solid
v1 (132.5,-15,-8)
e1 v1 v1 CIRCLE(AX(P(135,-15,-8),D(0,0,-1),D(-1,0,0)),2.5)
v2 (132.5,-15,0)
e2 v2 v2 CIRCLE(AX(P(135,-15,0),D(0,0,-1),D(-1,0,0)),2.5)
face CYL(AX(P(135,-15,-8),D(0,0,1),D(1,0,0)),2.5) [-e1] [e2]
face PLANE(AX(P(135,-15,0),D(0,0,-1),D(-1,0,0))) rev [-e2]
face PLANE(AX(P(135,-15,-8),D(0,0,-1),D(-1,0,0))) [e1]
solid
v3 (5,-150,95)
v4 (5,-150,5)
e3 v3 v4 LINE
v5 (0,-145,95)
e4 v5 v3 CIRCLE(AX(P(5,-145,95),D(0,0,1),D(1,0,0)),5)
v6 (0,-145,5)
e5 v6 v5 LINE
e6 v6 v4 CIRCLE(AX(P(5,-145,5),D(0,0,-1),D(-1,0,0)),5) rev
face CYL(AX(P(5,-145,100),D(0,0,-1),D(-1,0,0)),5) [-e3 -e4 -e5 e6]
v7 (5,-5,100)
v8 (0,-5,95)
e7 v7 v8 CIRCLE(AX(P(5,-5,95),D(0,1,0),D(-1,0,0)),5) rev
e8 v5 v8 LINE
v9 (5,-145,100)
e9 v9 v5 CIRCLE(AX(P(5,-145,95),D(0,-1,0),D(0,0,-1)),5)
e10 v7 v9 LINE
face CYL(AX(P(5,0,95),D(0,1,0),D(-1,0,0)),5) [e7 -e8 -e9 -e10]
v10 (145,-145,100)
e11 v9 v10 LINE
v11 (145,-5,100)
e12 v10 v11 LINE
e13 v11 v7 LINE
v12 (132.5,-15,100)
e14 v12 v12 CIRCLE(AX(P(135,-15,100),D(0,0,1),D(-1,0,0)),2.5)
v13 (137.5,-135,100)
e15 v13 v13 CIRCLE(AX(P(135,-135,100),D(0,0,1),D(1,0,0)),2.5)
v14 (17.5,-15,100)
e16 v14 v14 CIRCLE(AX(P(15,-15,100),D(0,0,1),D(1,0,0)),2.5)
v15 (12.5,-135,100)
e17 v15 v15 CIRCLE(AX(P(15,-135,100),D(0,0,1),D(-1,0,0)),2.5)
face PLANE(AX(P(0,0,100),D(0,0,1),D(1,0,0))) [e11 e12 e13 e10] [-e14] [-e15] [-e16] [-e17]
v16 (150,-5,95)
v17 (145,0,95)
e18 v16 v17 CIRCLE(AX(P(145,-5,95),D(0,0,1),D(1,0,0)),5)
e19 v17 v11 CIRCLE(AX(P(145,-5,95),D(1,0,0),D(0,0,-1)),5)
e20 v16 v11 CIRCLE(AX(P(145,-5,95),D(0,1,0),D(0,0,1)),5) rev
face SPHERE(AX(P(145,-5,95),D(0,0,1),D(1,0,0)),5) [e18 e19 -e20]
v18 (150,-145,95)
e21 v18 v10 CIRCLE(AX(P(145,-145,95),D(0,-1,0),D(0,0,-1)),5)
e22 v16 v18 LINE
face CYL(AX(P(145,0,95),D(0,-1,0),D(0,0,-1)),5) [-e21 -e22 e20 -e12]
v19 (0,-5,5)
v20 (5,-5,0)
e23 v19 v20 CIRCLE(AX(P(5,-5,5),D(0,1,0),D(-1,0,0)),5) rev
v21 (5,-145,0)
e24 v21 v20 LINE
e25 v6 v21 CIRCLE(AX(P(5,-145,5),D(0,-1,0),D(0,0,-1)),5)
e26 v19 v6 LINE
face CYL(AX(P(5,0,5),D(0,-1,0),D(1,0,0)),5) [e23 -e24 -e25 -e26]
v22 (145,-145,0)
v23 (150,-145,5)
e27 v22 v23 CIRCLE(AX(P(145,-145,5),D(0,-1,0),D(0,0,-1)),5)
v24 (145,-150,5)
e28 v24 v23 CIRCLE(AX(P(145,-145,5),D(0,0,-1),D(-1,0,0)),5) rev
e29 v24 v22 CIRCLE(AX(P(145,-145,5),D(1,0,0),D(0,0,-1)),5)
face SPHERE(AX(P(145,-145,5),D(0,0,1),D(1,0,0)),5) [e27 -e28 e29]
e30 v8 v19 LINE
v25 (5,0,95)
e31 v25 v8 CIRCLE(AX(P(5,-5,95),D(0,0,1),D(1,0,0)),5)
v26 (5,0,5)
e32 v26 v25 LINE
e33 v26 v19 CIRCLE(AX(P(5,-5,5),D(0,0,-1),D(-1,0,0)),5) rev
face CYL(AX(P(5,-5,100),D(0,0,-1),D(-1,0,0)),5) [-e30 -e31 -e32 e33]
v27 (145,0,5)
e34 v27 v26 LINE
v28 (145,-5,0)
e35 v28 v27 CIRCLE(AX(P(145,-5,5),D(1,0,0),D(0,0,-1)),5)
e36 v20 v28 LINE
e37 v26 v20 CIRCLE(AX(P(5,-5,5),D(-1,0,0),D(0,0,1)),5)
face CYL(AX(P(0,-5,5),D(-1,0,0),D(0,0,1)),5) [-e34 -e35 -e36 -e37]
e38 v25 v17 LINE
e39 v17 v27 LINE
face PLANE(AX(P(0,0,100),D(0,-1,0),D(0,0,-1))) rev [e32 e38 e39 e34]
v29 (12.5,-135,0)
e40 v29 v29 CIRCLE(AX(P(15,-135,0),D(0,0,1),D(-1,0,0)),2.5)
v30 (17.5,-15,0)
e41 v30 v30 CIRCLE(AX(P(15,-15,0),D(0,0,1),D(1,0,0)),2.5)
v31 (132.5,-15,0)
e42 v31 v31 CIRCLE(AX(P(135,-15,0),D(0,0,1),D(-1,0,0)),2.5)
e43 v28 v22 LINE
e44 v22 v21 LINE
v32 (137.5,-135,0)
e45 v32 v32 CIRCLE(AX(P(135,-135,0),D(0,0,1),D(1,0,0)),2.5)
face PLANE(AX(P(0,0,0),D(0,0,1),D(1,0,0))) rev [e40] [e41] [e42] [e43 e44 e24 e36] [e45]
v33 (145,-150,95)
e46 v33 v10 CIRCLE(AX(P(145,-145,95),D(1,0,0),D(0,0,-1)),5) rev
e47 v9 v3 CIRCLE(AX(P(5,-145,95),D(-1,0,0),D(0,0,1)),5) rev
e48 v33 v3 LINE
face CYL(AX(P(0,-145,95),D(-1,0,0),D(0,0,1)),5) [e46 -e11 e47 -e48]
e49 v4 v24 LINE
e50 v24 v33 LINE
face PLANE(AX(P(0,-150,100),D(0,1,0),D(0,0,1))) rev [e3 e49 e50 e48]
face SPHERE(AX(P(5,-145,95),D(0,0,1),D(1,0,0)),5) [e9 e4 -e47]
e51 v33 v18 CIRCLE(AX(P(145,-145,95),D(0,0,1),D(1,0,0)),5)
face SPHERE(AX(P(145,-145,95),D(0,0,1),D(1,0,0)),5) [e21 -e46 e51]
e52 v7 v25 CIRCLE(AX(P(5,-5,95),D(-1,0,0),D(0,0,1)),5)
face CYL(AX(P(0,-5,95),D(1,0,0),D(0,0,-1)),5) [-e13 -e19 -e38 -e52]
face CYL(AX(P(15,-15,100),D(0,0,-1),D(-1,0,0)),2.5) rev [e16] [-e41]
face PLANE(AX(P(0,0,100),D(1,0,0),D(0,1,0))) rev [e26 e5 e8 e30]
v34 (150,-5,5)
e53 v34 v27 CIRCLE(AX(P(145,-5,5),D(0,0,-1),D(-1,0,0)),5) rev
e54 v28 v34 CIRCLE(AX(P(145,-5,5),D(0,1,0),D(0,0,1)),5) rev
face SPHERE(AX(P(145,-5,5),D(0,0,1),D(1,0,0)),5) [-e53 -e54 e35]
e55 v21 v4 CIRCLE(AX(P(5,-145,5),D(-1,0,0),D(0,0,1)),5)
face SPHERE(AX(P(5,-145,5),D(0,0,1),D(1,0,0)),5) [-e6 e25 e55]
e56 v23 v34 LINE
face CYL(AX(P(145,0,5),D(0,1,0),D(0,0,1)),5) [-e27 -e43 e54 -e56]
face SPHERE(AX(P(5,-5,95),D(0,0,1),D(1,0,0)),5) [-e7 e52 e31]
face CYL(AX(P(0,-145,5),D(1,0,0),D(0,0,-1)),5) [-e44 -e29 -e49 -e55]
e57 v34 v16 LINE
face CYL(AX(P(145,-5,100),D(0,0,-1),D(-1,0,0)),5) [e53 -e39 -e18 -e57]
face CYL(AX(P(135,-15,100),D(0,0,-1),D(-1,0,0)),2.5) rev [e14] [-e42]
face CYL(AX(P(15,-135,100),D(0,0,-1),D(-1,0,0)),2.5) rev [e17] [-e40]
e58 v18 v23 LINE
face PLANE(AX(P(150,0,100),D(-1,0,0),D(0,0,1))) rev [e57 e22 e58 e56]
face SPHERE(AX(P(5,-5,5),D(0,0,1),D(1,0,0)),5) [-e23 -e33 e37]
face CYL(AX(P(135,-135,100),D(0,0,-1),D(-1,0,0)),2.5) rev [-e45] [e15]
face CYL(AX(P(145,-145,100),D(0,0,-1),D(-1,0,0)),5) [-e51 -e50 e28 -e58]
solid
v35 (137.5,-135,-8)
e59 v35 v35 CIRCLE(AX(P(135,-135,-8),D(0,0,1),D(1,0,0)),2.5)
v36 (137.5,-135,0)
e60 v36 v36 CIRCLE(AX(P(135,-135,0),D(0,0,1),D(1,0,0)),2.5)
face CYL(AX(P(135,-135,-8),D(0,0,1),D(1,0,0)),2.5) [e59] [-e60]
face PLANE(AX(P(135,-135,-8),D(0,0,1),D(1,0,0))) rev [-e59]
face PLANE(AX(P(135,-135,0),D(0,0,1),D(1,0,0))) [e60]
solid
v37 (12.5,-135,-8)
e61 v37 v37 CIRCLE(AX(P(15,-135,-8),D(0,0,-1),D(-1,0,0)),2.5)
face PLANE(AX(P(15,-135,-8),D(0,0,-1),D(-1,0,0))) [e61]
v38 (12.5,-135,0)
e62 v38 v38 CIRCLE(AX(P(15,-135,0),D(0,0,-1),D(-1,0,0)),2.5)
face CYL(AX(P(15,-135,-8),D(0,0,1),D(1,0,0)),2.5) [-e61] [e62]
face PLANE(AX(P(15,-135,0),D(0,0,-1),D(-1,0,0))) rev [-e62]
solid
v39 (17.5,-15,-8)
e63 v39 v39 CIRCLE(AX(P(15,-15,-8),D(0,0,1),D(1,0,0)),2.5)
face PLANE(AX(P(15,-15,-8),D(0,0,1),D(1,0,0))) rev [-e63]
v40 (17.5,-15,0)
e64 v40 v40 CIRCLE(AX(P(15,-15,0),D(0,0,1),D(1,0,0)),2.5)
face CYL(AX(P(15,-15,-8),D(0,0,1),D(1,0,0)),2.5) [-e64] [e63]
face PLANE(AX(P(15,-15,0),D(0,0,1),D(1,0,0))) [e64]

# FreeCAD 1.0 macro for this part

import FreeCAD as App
import Part
import Sketcher

V = App.Vector


def edges_at(feature, points):
    """Names of the edges that pass closest to the given points."""
    edges = feature.Shape.Edges
    near = lambda p: min(range(len(edges)), key=lambda i: edges[i].distToShape(Part.Vertex(*p))[0])
    return sorted({f"Edge{near(p) + 1}" for p in points})


def add_polygon(sketch, points):
    """Adds a closed chain of lines whose ends are joined by coincident constraints."""
    first, n = sketch.GeometryCount, len(points)
    for a, b in zip(points, points[1:] + points[:1]):
        sketch.addGeometry(Part.LineSegment(App.Vector(*a, 0), App.Vector(*b, 0)), False)
    for i in range(n):
        sketch.addConstraint(Sketcher.Constraint("Coincident", first + i, 2, first + (i + 1) % n, 1))

doc = App.newDocument("Part")
body = doc.addObject("PartDesign::Body", "Body")

sketch1 = body.newObject("Sketcher::SketchObject", "Sketch")
sketch1.AttachmentSupport = (doc.getObject("XY_Plane"), [""])
sketch1.MapMode = "FlatFace"
add_polygon(sketch1, [(0, 0), (0, -150), (150, -150), (150, 0)])
sketch1.addGeometry(Part.Circle(V(15, -135, 0), V(0, 0, 1), 2.5), False)
sketch1.addGeometry(Part.Circle(V(135, -135, 0), V(0, 0, 1), 2.5), False)
sketch1.addGeometry(Part.Circle(V(15, -15, 0), V(0, 0, 1), 2.5), False)
sketch1.addGeometry(Part.Circle(V(135, -15, 0), V(0, 0, 1), 2.5), False)
sketch1.addConstraint([
    Sketcher.Constraint("Vertical", 0),
    Sketcher.Constraint("Horizontal", 1),
    Sketcher.Constraint("Vertical", 2),
    Sketcher.Constraint("Horizontal", 3),
    Sketcher.Constraint("Coincident", 3, 2, -1, 1),
    Sketcher.Constraint("Equal", 4, 5),
    Sketcher.Constraint("Equal", 5, 6),
    Sketcher.Constraint("Equal", 6, 7),
    Sketcher.Constraint("Horizontal", 4, 3, 5, 3),
    Sketcher.Constraint("Horizontal", 6, 3, 7, 3),
    Sketcher.Constraint("Vertical", 4, 3, 6, 3),
    Sketcher.Constraint("Vertical", 5, 3, 7, 3),
    Sketcher.Constraint("Equal", 3, 0),
    Sketcher.Constraint("Diameter", 4, 5.0),
    Sketcher.Constraint("DistanceX", 1, 1, 1, 2, 150.0),
    Sketcher.Constraint("DistanceX", -1, 1, 4, 3, 15.0),
    Sketcher.Constraint("DistanceY", 4, 3, -1, 1, 135.0),
    Sketcher.Constraint("DistanceX", -1, 1, 5, 3, 135.0),
    Sketcher.Constraint("DistanceY", 6, 3, -1, 1, 15.0),
])
pad1 = body.newObject("PartDesign::Pad", "Pad")
pad1.Profile = sketch1
pad1.Length = 100
doc.recompute()

fillet = body.newObject("PartDesign::Fillet", "Fillet")
fillet.Base = (pad1, edges_at(pad1, [
    (150, -75, 100),
    (75, 0, 100),
    (0, -75, 100),
    (75, 0, 0),
    (150, -75, 0),
    (75, -150, 0),
    (0, -75, 0),
    (75, -150, 100),
    (0, 0, 50),
    (150, 0, 50),
    (150, -150, 50),
    (0, -150, 50),
]))
fillet.Radius = 5
body2 = doc.addObject("PartDesign::Body", "Body001")

sketch2 = body2.newObject("Sketcher::SketchObject", "Sketch001")
sketch2.AttachmentSupport = (doc.getObject("XY_Plane001"), [""])
sketch2.MapMode = "FlatFace"
sketch2.addGeometry(Part.Circle(V(15, -15, 0), V(0, 0, 1), 2.5), False)
sketch2.addConstraint([
    Sketcher.Constraint("Diameter", 0, 5.0),
    Sketcher.Constraint("DistanceX", -1, 1, 0, 3, 15.0),
    Sketcher.Constraint("DistanceY", 0, 3, -1, 1, 15.0),
])
pad2 = body2.newObject("PartDesign::Pad", "Pad001")
pad2.Profile = sketch2
pad2.Length = 8
pad2.Reversed = True
body3 = doc.addObject("PartDesign::Body", "Body002")

sketch3 = body3.newObject("Sketcher::SketchObject", "Sketch002")
sketch3.AttachmentSupport = (doc.getObject("XY_Plane002"), [""])
sketch3.MapMode = "FlatFace"
sketch3.addGeometry(Part.Circle(V(15, -135, 0), V(0, 0, 1), 2.5), False)
sketch3.addConstraint([
    Sketcher.Constraint("Diameter", 0, 5.0),
    Sketcher.Constraint("DistanceX", -1, 1, 0, 3, 15.0),
    Sketcher.Constraint("DistanceY", 0, 3, -1, 1, 135.0),
])
pad3 = body3.newObject("PartDesign::Pad", "Pad002")
pad3.Profile = sketch3
pad3.Length = 8
pad3.Reversed = True
body4 = doc.addObject("PartDesign::Body", "Body003")

sketch4 = body4.newObject("Sketcher::SketchObject", "Sketch003")
sketch4.AttachmentSupport = (doc.getObject("XY_Plane003"), [""])
sketch4.MapMode = "FlatFace"
sketch4.addGeometry(Part.Circle(V(135, -15, 0), V(0, 0, 1), 2.5), False)
sketch4.addConstraint([
    Sketcher.Constraint("Diameter", 0, 5.0),
    Sketcher.Constraint("DistanceX", -1, 1, 0, 3, 135.0),
    Sketcher.Constraint("DistanceY", 0, 3, -1, 1, 15.0),
])
pad4 = body4.newObject("PartDesign::Pad", "Pad003")
pad4.Profile = sketch4
pad4.Length = 8
pad4.Reversed = True
body5 = doc.addObject("PartDesign::Body", "Body004")

sketch5 = body5.newObject("Sketcher::SketchObject", "Sketch004")
sketch5.AttachmentSupport = (doc.getObject("XY_Plane004"), [""])
sketch5.MapMode = "FlatFace"
sketch5.addGeometry(Part.Circle(V(135, -135, 0), V(0, 0, 1), 2.5), False)
sketch5.addConstraint([
    Sketcher.Constraint("Diameter", 0, 5.0),
    Sketcher.Constraint("DistanceX", -1, 1, 0, 3, 135.0),
    Sketcher.Constraint("DistanceY", 0, 3, -1, 1, 135.0),
])
pad5 = body5.newObject("PartDesign::Pad", "Pad004")
pad5.Profile = sketch5
pad5.Length = 8
pad5.Reversed = True

doc.recompute()
